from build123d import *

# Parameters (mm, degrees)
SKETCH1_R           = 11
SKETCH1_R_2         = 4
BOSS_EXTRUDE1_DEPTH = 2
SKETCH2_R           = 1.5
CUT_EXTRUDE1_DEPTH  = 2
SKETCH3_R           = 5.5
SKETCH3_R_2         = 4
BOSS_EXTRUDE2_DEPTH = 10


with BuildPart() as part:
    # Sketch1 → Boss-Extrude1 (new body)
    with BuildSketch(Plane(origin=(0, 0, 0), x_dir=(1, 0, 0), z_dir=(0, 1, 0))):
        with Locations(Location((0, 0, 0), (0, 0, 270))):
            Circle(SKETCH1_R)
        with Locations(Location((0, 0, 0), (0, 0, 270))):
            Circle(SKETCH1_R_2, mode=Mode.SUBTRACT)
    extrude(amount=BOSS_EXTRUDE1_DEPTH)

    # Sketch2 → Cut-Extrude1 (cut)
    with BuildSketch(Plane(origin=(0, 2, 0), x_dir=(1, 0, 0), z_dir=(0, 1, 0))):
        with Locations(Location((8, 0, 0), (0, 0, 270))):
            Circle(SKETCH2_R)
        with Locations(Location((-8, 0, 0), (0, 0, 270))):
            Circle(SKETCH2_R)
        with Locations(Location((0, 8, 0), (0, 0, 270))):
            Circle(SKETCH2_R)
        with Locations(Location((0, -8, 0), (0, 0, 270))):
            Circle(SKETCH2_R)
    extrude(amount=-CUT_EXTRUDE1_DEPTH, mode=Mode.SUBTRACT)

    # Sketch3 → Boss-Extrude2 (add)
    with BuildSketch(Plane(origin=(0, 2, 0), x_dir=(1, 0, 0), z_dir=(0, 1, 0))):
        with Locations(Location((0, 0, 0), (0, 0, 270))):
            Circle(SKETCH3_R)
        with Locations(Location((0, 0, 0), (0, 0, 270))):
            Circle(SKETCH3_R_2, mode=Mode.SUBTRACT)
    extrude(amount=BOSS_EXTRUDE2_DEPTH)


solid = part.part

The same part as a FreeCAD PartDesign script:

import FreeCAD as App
import Part
import Sketcher
from FreeCAD import Vector

doc = App.newDocument("Part")
body = doc.addObject("PartDesign::Body", "Body")

# Sketch on XZ plane
sketch1 = body.newObject("Sketcher::SketchObject", "Sketch")
sketch1.AttachmentSupport = (doc.getObject("XZ_Plane"), [""])
sketch1.MapMode = "FlatFace"
sketch1.addGeometry(Part.Circle(Vector(0, 0, 0), Vector(0, 0, 1), 11), False)
sketch1.addGeometry(Part.Circle(Vector(0, 0, 0), Vector(0, 0, 1), 4), False)
sketch1.addConstraint(Sketcher.Constraint("Coincident", 0, 3, -1, 1))
sketch1.addConstraint(Sketcher.Constraint("Coincident", 1, 3, -1, 1))
sketch1.addConstraint(Sketcher.Constraint("Diameter", 0, 22.0))
sketch1.addConstraint(Sketcher.Constraint("Diameter", 1, 8.0))
pad1 = body.newObject("PartDesign::Pad", "Pad")
pad1.Profile = sketch1
pad1.Length = 2
pad1.Reversed = True

# Sketch on XZ plane
sketch2 = body.newObject("Sketcher::SketchObject", "Sketch001")
sketch2.AttachmentSupport = (doc.getObject("XZ_Plane"), [""])
sketch2.MapMode = "FlatFace"
sketch2.AttachmentOffset = App.Placement(Vector(0, 0, -2), App.Rotation())
sketch2.addGeometry(Part.Circle(Vector(8, 0, 0), Vector(0, 0, 1), 1.5), False)
sketch2.addGeometry(Part.Circle(Vector(-8, 0, 0), Vector(0, 0, 1), 1.5), False)
sketch2.addGeometry(Part.Circle(Vector(0, -8, 0), Vector(0, 0, 1), 1.5), False)
sketch2.addGeometry(Part.Circle(Vector(0, 8, 0), Vector(0, 0, 1), 1.5), False)
sketch2.addConstraint(Sketcher.Constraint("Equal", 0, 1))
sketch2.addConstraint(Sketcher.Constraint("Equal", 1, 2))
sketch2.addConstraint(Sketcher.Constraint("Equal", 2, 3))
sketch2.addConstraint(Sketcher.Constraint("Symmetric", 0, 3, 1, 3, -1, 1))
sketch2.addConstraint(Sketcher.Constraint("Symmetric", 2, 3, 3, 3, -1, 1))
sketch2.addConstraint(Sketcher.Constraint("PointOnObject", 0, 3, -1))
sketch2.addConstraint(Sketcher.Constraint("PointOnObject", 2, 3, -2))
sketch2.addConstraint(Sketcher.Constraint("Diameter", 0, 3.0))
sketch2.addConstraint(Sketcher.Constraint("DistanceX", -1, 1, 0, 3, 8.0))
sketch2.addConstraint(Sketcher.Constraint("DistanceY", 2, 3, -1, 1, 8.0))
pocket1 = body.newObject("PartDesign::Pocket", "Pocket")
pocket1.Profile = sketch2
pocket1.Length = 2
pocket1.Reversed = True

# Sketch on XZ plane
sketch3 = body.newObject("Sketcher::SketchObject", "Sketch002")
sketch3.AttachmentSupport = (doc.getObject("XZ_Plane"), [""])
sketch3.MapMode = "FlatFace"
sketch3.AttachmentOffset = App.Placement(Vector(0, 0, -2), App.Rotation())
sketch3.addGeometry(Part.Circle(Vector(0, 0, 0), Vector(0, 0, 1), 5.5), False)
sketch3.addGeometry(Part.Circle(Vector(0, 0, 0), Vector(0, 0, 1), 4), False)
sketch3.addConstraint(Sketcher.Constraint("Coincident", 0, 3, -1, 1))
sketch3.addConstraint(Sketcher.Constraint("Coincident", 1, 3, -1, 1))
sketch3.addConstraint(Sketcher.Constraint("Diameter", 0, 11.0))
sketch3.addConstraint(Sketcher.Constraint("Diameter", 1, 8.0))
pad2 = body.newObject("PartDesign::Pad", "Pad001")
pad2.Profile = sketch3
pad2.Length = 10
pad2.Reversed = True

doc.recompute()
